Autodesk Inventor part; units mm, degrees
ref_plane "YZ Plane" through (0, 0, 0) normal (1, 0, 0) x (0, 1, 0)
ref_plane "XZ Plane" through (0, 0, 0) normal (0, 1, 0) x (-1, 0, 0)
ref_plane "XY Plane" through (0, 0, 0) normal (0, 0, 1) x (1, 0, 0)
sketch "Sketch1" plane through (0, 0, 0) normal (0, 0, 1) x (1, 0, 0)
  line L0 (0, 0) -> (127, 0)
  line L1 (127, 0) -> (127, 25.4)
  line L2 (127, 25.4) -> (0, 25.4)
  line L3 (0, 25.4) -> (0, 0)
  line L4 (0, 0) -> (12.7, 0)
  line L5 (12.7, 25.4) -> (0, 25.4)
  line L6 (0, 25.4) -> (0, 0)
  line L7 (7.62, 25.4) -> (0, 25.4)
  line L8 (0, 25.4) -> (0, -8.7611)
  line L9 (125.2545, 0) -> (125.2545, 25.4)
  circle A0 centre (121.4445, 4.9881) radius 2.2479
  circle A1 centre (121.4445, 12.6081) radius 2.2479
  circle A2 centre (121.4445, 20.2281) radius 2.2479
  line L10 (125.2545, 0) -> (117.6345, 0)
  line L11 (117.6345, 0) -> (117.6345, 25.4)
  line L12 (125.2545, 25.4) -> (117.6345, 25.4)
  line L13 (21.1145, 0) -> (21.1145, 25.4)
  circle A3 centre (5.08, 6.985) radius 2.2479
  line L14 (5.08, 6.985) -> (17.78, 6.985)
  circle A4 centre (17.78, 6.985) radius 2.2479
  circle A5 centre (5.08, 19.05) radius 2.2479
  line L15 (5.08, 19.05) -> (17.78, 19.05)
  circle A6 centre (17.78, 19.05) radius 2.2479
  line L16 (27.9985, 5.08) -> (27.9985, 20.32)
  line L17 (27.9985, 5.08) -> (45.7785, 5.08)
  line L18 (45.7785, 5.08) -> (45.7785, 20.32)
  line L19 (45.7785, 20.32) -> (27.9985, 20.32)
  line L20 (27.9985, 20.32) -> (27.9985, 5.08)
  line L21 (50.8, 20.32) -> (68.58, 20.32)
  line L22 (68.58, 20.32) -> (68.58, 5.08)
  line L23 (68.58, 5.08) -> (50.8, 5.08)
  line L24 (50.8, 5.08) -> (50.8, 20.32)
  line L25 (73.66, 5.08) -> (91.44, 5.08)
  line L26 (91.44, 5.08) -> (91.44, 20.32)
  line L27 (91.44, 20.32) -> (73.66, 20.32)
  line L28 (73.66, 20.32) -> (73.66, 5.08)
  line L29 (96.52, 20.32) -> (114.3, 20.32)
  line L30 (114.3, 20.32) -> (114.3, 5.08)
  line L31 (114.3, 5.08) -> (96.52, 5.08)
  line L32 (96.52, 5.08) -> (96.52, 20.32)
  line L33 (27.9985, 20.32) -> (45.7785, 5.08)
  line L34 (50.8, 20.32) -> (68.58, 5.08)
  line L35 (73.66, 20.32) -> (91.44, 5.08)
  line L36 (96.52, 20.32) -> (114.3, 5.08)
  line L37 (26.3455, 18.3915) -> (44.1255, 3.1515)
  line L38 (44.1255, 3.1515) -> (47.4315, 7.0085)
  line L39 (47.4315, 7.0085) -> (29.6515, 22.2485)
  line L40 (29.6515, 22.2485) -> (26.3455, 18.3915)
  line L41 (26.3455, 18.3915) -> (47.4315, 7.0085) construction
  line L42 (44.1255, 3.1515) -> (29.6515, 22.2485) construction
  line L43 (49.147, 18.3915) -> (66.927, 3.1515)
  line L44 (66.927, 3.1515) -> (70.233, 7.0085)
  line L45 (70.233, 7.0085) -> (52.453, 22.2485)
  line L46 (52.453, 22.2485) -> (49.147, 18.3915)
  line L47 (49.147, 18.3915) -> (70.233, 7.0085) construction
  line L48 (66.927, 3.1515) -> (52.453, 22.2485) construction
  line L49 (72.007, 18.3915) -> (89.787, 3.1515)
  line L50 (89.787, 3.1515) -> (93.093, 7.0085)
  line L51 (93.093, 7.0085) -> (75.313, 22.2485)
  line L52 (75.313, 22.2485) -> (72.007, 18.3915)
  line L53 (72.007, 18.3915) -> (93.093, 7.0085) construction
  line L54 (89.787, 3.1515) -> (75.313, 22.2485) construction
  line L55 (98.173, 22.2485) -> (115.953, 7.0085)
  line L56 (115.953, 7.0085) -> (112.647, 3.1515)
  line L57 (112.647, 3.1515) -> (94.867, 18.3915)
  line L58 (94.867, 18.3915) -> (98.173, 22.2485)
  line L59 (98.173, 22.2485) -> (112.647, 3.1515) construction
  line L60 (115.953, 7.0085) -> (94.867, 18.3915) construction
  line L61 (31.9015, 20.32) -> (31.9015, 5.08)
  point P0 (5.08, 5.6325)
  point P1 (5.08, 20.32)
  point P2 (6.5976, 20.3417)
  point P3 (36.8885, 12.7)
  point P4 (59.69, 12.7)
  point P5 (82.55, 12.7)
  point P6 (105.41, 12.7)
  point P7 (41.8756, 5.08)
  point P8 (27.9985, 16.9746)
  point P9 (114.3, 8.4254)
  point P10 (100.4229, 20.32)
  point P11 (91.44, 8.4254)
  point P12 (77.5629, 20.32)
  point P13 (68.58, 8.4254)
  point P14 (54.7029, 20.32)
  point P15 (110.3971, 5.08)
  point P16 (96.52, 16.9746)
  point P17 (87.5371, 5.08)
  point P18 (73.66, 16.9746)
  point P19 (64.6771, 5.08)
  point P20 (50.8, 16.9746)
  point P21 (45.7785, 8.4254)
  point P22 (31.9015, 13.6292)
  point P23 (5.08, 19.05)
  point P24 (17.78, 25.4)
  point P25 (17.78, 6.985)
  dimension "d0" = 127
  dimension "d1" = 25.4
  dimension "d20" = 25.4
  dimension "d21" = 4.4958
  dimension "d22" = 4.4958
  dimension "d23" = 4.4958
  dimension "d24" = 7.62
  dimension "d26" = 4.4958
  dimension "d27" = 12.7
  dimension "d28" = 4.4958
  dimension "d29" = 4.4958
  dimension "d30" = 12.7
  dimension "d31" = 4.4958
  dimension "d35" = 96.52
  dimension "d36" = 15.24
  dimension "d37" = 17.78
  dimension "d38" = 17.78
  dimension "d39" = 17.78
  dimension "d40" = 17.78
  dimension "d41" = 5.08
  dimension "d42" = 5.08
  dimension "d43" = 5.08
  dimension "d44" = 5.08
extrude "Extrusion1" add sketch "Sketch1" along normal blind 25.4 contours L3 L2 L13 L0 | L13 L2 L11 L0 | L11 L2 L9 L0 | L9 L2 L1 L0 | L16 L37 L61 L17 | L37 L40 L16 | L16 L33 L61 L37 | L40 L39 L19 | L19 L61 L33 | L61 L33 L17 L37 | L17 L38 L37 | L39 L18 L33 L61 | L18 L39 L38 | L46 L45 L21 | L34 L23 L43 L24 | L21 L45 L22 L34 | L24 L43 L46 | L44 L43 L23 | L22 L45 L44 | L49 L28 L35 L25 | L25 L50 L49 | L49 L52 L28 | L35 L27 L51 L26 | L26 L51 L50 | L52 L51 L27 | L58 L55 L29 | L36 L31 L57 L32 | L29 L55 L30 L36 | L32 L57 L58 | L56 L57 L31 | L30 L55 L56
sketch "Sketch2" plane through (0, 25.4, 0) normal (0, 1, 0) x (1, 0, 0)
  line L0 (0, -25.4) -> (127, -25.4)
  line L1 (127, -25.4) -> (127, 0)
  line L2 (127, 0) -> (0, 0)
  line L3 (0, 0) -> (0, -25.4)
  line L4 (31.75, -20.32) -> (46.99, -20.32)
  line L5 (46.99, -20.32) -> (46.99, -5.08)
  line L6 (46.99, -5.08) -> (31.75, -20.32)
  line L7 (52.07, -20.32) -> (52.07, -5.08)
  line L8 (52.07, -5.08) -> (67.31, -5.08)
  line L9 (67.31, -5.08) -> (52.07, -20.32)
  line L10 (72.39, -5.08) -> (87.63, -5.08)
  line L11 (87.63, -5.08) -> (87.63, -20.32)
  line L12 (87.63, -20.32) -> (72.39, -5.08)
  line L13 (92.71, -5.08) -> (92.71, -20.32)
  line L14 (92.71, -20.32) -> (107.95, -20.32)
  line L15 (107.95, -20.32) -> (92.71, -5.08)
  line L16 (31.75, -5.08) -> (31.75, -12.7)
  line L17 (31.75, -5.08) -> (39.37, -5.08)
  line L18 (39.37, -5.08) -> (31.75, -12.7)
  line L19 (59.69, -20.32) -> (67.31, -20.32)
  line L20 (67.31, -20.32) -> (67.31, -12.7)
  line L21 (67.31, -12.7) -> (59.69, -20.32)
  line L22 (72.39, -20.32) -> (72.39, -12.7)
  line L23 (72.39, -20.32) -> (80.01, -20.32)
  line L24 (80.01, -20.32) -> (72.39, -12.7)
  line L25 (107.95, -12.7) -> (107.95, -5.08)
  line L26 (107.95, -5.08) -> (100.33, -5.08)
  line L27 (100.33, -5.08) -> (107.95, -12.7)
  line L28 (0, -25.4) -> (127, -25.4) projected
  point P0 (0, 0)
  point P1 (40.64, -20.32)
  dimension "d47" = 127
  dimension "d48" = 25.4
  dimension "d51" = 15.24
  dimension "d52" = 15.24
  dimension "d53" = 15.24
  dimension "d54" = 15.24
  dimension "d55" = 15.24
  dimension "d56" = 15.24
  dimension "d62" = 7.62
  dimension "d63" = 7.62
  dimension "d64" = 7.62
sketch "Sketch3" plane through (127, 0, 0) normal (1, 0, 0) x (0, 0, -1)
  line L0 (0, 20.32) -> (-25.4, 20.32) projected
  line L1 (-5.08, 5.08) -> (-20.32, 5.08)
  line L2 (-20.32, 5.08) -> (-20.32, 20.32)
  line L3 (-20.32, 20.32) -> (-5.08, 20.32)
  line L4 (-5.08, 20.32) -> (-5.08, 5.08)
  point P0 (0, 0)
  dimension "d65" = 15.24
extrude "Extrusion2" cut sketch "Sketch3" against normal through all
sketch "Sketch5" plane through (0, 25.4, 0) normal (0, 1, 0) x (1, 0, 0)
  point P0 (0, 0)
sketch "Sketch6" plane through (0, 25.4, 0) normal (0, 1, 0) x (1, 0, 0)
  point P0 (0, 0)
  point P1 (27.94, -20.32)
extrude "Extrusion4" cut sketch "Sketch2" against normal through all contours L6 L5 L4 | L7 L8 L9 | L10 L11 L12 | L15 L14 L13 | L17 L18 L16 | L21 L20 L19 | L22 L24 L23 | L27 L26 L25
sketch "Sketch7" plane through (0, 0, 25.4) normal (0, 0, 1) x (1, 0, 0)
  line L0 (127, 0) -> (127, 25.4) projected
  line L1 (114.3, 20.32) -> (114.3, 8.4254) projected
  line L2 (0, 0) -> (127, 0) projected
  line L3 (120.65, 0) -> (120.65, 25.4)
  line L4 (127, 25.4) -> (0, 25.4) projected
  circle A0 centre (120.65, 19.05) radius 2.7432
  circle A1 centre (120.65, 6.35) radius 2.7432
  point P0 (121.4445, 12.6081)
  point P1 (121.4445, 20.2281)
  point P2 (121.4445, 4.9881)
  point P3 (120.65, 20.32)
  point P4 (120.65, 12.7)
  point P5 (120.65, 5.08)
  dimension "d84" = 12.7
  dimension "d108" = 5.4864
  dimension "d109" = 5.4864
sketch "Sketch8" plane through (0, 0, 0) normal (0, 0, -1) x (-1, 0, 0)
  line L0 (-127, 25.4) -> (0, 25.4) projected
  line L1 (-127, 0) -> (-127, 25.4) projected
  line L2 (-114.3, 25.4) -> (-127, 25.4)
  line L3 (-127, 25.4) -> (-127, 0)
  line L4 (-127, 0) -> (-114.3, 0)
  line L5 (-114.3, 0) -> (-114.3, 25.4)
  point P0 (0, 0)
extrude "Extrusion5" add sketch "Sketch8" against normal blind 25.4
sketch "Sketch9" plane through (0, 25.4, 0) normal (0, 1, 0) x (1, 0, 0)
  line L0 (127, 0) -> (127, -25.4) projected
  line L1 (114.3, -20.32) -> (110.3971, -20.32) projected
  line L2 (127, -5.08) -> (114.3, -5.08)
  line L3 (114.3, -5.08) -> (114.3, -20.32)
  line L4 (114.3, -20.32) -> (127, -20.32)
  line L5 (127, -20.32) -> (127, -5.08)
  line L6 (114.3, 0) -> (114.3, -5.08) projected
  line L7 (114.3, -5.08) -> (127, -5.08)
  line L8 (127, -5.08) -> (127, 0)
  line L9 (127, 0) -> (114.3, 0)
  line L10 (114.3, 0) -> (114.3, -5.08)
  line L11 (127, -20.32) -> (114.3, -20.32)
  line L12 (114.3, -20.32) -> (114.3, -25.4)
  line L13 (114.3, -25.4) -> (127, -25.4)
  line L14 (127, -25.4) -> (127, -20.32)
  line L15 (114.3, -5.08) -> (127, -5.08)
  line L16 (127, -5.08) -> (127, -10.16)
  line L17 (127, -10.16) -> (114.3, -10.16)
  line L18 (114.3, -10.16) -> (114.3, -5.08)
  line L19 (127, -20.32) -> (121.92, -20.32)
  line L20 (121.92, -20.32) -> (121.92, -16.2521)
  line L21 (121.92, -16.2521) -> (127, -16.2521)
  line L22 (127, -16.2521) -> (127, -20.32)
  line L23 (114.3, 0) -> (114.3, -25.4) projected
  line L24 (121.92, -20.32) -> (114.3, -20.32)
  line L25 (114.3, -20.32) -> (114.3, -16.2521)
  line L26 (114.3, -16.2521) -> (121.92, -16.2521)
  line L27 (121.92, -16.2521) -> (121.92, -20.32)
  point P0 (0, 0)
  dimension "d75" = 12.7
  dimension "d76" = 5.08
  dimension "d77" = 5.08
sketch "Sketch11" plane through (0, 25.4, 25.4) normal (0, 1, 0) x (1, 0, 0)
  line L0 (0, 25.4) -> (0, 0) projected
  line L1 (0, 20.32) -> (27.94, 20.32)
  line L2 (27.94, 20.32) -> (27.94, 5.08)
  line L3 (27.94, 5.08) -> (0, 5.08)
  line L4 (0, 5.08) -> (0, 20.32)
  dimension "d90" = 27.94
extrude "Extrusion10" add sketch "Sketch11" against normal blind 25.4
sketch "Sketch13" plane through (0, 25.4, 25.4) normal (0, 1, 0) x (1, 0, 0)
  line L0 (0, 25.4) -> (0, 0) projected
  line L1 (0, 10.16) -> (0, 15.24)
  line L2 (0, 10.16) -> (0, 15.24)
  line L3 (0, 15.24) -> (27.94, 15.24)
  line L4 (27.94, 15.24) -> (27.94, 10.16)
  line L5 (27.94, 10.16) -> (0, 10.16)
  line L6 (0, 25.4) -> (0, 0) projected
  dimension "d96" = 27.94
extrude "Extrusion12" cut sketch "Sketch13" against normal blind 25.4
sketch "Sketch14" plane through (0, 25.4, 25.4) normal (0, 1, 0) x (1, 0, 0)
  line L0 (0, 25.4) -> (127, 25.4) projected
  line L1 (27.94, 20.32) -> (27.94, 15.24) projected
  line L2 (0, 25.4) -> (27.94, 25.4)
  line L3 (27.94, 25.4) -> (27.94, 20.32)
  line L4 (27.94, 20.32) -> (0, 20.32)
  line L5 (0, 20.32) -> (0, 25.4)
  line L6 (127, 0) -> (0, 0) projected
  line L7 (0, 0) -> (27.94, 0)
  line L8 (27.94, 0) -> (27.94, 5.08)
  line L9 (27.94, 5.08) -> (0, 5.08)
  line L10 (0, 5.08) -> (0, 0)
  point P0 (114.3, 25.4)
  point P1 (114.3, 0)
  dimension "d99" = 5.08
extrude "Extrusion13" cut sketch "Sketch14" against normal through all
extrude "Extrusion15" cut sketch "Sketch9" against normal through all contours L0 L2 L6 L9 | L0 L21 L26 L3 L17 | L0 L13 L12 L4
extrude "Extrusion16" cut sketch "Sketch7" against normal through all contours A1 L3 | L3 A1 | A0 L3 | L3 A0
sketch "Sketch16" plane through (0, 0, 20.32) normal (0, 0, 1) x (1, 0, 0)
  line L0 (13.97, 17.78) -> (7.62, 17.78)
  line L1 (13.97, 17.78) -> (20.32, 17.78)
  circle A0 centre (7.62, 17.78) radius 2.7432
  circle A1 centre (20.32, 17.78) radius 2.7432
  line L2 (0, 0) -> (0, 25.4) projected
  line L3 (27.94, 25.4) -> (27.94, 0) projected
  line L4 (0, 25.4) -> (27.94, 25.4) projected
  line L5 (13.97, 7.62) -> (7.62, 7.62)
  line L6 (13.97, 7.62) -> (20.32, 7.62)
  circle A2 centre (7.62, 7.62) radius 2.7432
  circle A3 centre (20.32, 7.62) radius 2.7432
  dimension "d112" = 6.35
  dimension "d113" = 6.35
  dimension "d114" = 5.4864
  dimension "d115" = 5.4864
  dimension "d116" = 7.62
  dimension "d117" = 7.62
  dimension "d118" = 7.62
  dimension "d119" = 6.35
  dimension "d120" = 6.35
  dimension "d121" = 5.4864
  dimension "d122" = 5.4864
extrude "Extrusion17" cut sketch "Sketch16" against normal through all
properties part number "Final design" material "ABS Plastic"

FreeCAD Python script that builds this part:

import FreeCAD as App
import Part
import Sketcher
from FreeCAD import Vector
Q = App.Units.Quantity

doc = App.newDocument("Part")
params = doc.addObject("Spreadsheet::Sheet", "Params")
for row, (alias, value) in enumerate([
    ("sketch1_width", "5 in"),
    ("sketch1_height", "1 in"),
    ("sketch1_diameter", "0.177 in"),
    ("pad1_length", "1 in"),
    ("sketch2_width", "0.6 in"),
    ("sketch3_width", "0.6 in"),
    ("sketch4_height", "1 in"),
    ("sketch4_width", "0.5 in"),
    ("pad2_length", "1 in"),
    ("sketch5_width", "1.1 in"),
    ("sketch5_height", "0.6 in"),
    ("pad3_length", "1 in"),
    ("sketch6_width", "1.1 in"),
    ("sketch6_height", "0.2 in"),
    ("pocket3_length", "1 in"),
    ("sketch7_height", "0.2 in"),
    ("sketch7_width", "1.1 in"),
    ("sketch8_width", "0.5 in"),
    ("sketch8_height", "0.2 in"),
    ("sketch9_diameter", "0.216 in"),
    ("sketch10_diameter", "0.216 in"),
], start=1):
    params.set(f"A{row}", alias)
    params.set(f"B{row}", "=" + value)
    params.setAlias(f"B{row}", alias)

body = doc.addObject("PartDesign::Body", "Body")

# Sketch on XY plane
sketch1 = doc.addObject("Sketcher::SketchObject", "Sketch")
body.addObject(sketch1)
sketch1.AttachmentSupport = (doc.XY_Plane, [""])
sketch1.MapMode = "FlatFace"
sketch1.addGeometry([
    Part.LineSegment(Vector(0, 25.4, 0), Vector(0, 0, 0)),  # 0
    Part.LineSegment(Vector(0, 0, 0), Vector(127, 0, 0)),  # 1
    Part.LineSegment(Vector(127, 0, 0), Vector(127, 25.4, 0)),  # 2
    Part.LineSegment(Vector(127, 25.4, 0), Vector(0, 25.4, 0)),  # 3
    Part.Circle(Vector(5.1, 7, 0), Vector(0, 0, 1), 2.2),  # 4
    Part.Circle(Vector(17.8, 7, 0), Vector(0, 0, 1), 2.2),  # 5
    Part.Circle(Vector(5.1, 19.1, 0), Vector(0, 0, 1), 2.2),  # 6
    Part.Circle(Vector(17.8, 19.1, 0), Vector(0, 0, 1), 2.2),  # 7
    Part.LineSegment(Vector(41.9, 5.1, 0), Vector(31.9, 5.1, 0)),  # 8
    Part.LineSegment(Vector(31.9, 5.1, 0), Vector(31.9, 13.6, 0)),  # 9
    Part.LineSegment(Vector(31.9, 13.6, 0), Vector(41.9, 5.1, 0)),  # 10
    Part.LineSegment(Vector(45.8, 20.3, 0), Vector(45.8, 8.4, 0)),  # 11
    Part.LineSegment(Vector(45.8, 8.4, 0), Vector(31.9, 20.3, 0)),  # 12
    Part.LineSegment(Vector(31.9, 20.3, 0), Vector(45.8, 20.3, 0)),  # 13
    Part.LineSegment(Vector(50.8, 5.1, 0), Vector(50.8, 17, 0)),  # 14
    Part.LineSegment(Vector(50.8, 17, 0), Vector(64.7, 5.1, 0)),  # 15
    Part.LineSegment(Vector(64.7, 5.1, 0), Vector(50.8, 5.1, 0)),  # 16
    Part.LineSegment(Vector(68.6, 20.3, 0), Vector(68.6, 8.4, 0)),  # 17
    Part.LineSegment(Vector(68.6, 8.4, 0), Vector(54.7, 20.3, 0)),  # 18
    Part.LineSegment(Vector(54.7, 20.3, 0), Vector(68.6, 20.3, 0)),  # 19
    Part.LineSegment(Vector(87.5, 5.1, 0), Vector(73.7, 5.1, 0)),  # 20
    Part.LineSegment(Vector(73.7, 5.1, 0), Vector(73.7, 17, 0)),  # 21
    Part.LineSegment(Vector(73.7, 17, 0), Vector(87.5, 5.1, 0)),  # 22
    Part.LineSegment(Vector(91.4, 20.3, 0), Vector(91.4, 8.4, 0)),  # 23
    Part.LineSegment(Vector(91.4, 8.4, 0), Vector(77.6, 20.3, 0)),  # 24
    Part.LineSegment(Vector(77.6, 20.3, 0), Vector(91.4, 20.3, 0)),  # 25
    Part.LineSegment(Vector(96.5, 5.1, 0), Vector(96.5, 17, 0)),  # 26
    Part.LineSegment(Vector(96.5, 17, 0), Vector(110.4, 5.1, 0)),  # 27
    Part.LineSegment(Vector(110.4, 5.1, 0), Vector(96.5, 5.1, 0)),  # 28
    Part.LineSegment(Vector(114.3, 20.3, 0), Vector(114.3, 8.4, 0)),  # 29
    Part.LineSegment(Vector(114.3, 8.4, 0), Vector(100.4, 20.3, 0)),  # 30
    Part.LineSegment(Vector(100.4, 20.3, 0), Vector(114.3, 20.3, 0)),  # 31
    Part.Circle(Vector(121.4, 20.2, 0), Vector(0, 0, 1), 2.2),  # 32
    Part.Circle(Vector(121.4, 5, 0), Vector(0, 0, 1), 2.2),  # 33
    Part.Circle(Vector(121.4, 12.6, 0), Vector(0, 0, 1), 2.2),  # 34
], False)
sketch1.addConstraint([
    Sketcher.Constraint("Coincident", 0, 2, 1, 1),
    Sketcher.Constraint("Coincident", 1, 2, 2, 1),
    Sketcher.Constraint("Coincident", 2, 2, 3, 1),
    Sketcher.Constraint("Coincident", 3, 2, 0, 1),
    Sketcher.Constraint("Coincident", 8, 2, 9, 1),
    Sketcher.Constraint("Coincident", 9, 2, 10, 1),
    Sketcher.Constraint("Coincident", 10, 2, 8, 1),
    Sketcher.Constraint("Coincident", 11, 2, 12, 1),
    Sketcher.Constraint("Coincident", 12, 2, 13, 1),
    Sketcher.Constraint("Coincident", 13, 2, 11, 1),
    Sketcher.Constraint("Coincident", 14, 2, 15, 1),
    Sketcher.Constraint("Coincident", 15, 2, 16, 1),
    Sketcher.Constraint("Coincident", 16, 2, 14, 1),
    Sketcher.Constraint("Coincident", 17, 2, 18, 1),
    Sketcher.Constraint("Coincident", 18, 2, 19, 1),
    Sketcher.Constraint("Coincident", 19, 2, 17, 1),
    Sketcher.Constraint("Coincident", 20, 2, 21, 1),
    Sketcher.Constraint("Coincident", 21, 2, 22, 1),
    Sketcher.Constraint("Coincident", 22, 2, 20, 1),
    Sketcher.Constraint("Coincident", 23, 2, 24, 1),
    Sketcher.Constraint("Coincident", 24, 2, 25, 1),
    Sketcher.Constraint("Coincident", 25, 2, 23, 1),
    Sketcher.Constraint("Coincident", 26, 2, 27, 1),
    Sketcher.Constraint("Coincident", 27, 2, 28, 1),
    Sketcher.Constraint("Coincident", 28, 2, 26, 1),
    Sketcher.Constraint("Coincident", 29, 2, 30, 1),
    Sketcher.Constraint("Coincident", 30, 2, 31, 1),
    Sketcher.Constraint("Coincident", 31, 2, 29, 1),
    Sketcher.Constraint("Vertical", 0),
    Sketcher.Constraint("Horizontal", 1),
    Sketcher.Constraint("Vertical", 2),
    Sketcher.Constraint("Horizontal", 3),
    Sketcher.Constraint("Horizontal", 8),
    Sketcher.Constraint("Vertical", 9),
    Sketcher.Constraint("Vertical", 11),
    Sketcher.Constraint("Horizontal", 13),
    Sketcher.Constraint("Vertical", 14),
    Sketcher.Constraint("Horizontal", 16),
    Sketcher.Constraint("Vertical", 17),
    Sketcher.Constraint("Horizontal", 19),
    Sketcher.Constraint("Horizontal", 20),
    Sketcher.Constraint("Vertical", 21),
    Sketcher.Constraint("Vertical", 23),
    Sketcher.Constraint("Horizontal", 25),
    Sketcher.Constraint("Vertical", 26),
    Sketcher.Constraint("Horizontal", 28),
    Sketcher.Constraint("Vertical", 29),
    Sketcher.Constraint("Horizontal", 31),
    Sketcher.Constraint("Coincident", 0, 2, -1, 1),
    Sketcher.Constraint("Equal", 4, 5),
    Sketcher.Constraint("Equal", 5, 6),
    Sketcher.Constraint("Equal", 6, 7),
    Sketcher.Constraint("Equal", 7, 32),
    Sketcher.Constraint("Equal", 32, 33),
    Sketcher.Constraint("Equal", 33, 34),
    Sketcher.Constraint("Parallel", 10, 12),
    Sketcher.Constraint("Parallel", 12, 15),
    Sketcher.Constraint("Parallel", 15, 18),
    Sketcher.Constraint("Parallel", 18, 22),
    Sketcher.Constraint("Parallel", 22, 24),
    Sketcher.Constraint("Parallel", 24, 27),
    Sketcher.Constraint("Parallel", 27, 30),
    Sketcher.Constraint("Horizontal", 4, 3, 5, 3),
    Sketcher.Constraint("Horizontal", 6, 3, 7, 3),
    Sketcher.Constraint("Horizontal", 10, 2, 15, 2),
    Sketcher.Constraint("Horizontal", 11, 2, 17, 2),
    Sketcher.Constraint("Horizontal", 13, 2, 18, 2),
    Sketcher.Constraint("Horizontal", 16, 2, 20, 2),
    Sketcher.Constraint("Horizontal", 14, 2, 21, 2),
    Sketcher.Constraint("Horizontal", 17, 2, 23, 2),
    Sketcher.Constraint("Horizontal", 19, 2, 24, 2),
    Sketcher.Constraint("Horizontal", 21, 2, 26, 2),
    Sketcher.Constraint("Horizontal", 22, 2, 27, 2),
    Sketcher.Constraint("Horizontal", 23, 2, 29, 2),
    Sketcher.Constraint("Horizontal", 25, 2, 30, 2),
    Sketcher.Constraint("Vertical", 4, 3, 6, 3),
    Sketcher.Constraint("Vertical", 5, 3, 7, 3),
    Sketcher.Constraint("Vertical", 32, 3, 33, 3),
    Sketcher.Constraint("Vertical", 33, 3, 34, 3),
    Sketcher.Constraint("Vertical", 9, 2, 12, 2),
    Sketcher.Constraint("Equal", 13, 16),
    Sketcher.Constraint("DistanceX", 1, 1, 1, 2, Q("5 in")),
    Sketcher.Constraint("DistanceY", 0, 2, 0, 1, Q("1 in")),
    Sketcher.Constraint("Diameter", 4, Q("0.177 in")),
    Sketcher.Constraint("DistanceX", -1, 1, 4, 3, Q("0.2 in")),
    Sketcher.Constraint("DistanceX", -1, 1, 5, 3, Q("0.7 in")),
    Sketcher.Constraint("DistanceY", -1, 1, 8, 2, Q("0.2 in")),
    Sketcher.Constraint("DistanceX", -1, 1, 26, 2, Q("3.8 in")),
    Sketcher.Constraint("DistanceY", 33, 3, 32, 3, Q("0.6 in")),
    Sketcher.Constraint("DistanceY", 33, 3, 34, 3, Q("0.3 in")),
    Sketcher.Constraint("DistanceY", 8, 2, 12, 2, Q("0.6 in")),
    Sketcher.Constraint("DistanceX", 16, 2, 17, 2, Q("0.7 in")),
    Sketcher.Constraint("DistanceX", 17, 2, 20, 2, Q("0.2 in")),
    Sketcher.Constraint("DistanceX", 20, 2, 23, 2, Q("0.7 in")),
    Sketcher.Constraint("DistanceX", 25, 2, 26, 2, Q("0.2 in")),
    Sketcher.Constraint("DistanceX", 29, 2, 1, 2, Q("0.5 in")),
    Sketcher.Constraint("DistanceY", -1, 1, 6, 3, Q("0.75 in")),
    Sketcher.Constraint("DistanceY", 11, 2, 11, 1, Q("0.4683 in")),
    Sketcher.Constraint("DistanceY", -1, 1, 4, 3, Q("0.275 in")),
    Sketcher.Constraint("Distance", 10, Q("0.5172 in")),
    Sketcher.Constraint("DistanceX", 8, 2, 8, 1, Q("9.974 mm")),
    Sketcher.Constraint("DistanceX", -1, 1, 11, 2, Q("1.8023 in")),
    Sketcher.Constraint("DistanceX", -1, 1, 32, 3, Q("121.4445 mm")),
    Sketcher.Constraint("DistanceY", -1, 1, 32, 3, Q("20.228 mm")),
])
sketch1.setExpression("Constraints[81]", "Params.sketch1_width")
sketch1.setExpression("Constraints[82]", "Params.sketch1_height")
sketch1.setExpression("Constraints[83]", "Params.sketch1_diameter")
pad1 = doc.addObject("PartDesign::Pad", "Pad")
body.addObject(pad1)
pad1.Profile = sketch1
pad1.setExpression("Length", "Params.pad1_length")

# Sketch on YZ plane
sketch2 = doc.addObject("Sketcher::SketchObject", "Sketch001")
body.addObject(sketch2)
sketch2.AttachmentSupport = (doc.YZ_Plane, [""])
sketch2.MapMode = "FlatFace"
sketch2.AttachmentOffset = App.Placement(Vector(0, 0, 5 * 25.4), App.Rotation())
sketch2.addGeometry([
    Part.LineSegment(Vector(5, 5, 0), Vector(20, 5, 0)),
    Part.LineSegment(Vector(20, 5, 0), Vector(20, 20, 0)),
    Part.LineSegment(Vector(20, 20, 0), Vector(5, 20, 0)),
    Part.LineSegment(Vector(5, 20, 0), Vector(5, 5, 0)),
], False)
sketch2.addConstraint([
    Sketcher.Constraint("Coincident", 0, 2, 1, 1),
    Sketcher.Constraint("Coincident", 1, 2, 2, 1),
    Sketcher.Constraint("Coincident", 2, 2, 3, 1),
    Sketcher.Constraint("Coincident", 3, 2, 0, 1),
    Sketcher.Constraint("Horizontal", 0),
    Sketcher.Constraint("Vertical", 1),
    Sketcher.Constraint("Horizontal", 2),
    Sketcher.Constraint("Vertical", 3),
    Sketcher.Constraint("Equal", 2, 1),
    Sketcher.Constraint("DistanceX", 0, 1, 0, 2, Q("0.6 in")),
    Sketcher.Constraint("DistanceX", -1, 1, 0, 2, Q("0.8 in")),
    Sketcher.Constraint("DistanceY", -1, 1, 0, 2, Q("0.2 in")),
])
sketch2.setExpression("Constraints[9]", "Params.sketch2_width")
pocket1 = doc.addObject("PartDesign::Pocket", "Pocket")
body.addObject(pocket1)
pocket1.Profile = sketch2
pocket1.Type = "ThroughAll"

# Sketch on XZ plane
sketch3 = doc.addObject("Sketcher::SketchObject", "Sketch002")
body.addObject(sketch3)
sketch3.AttachmentSupport = (doc.XZ_Plane, [""])
sketch3.MapMode = "FlatFace"
sketch3.AttachmentOffset = App.Placement(Vector(0, 0, -1 * 25.4), App.Rotation())
sketch3.addGeometry([
    Part.LineSegment(Vector(47, 5, 0), Vector(32, 20, 0)),  # 0
    Part.LineSegment(Vector(32, 20, 0), Vector(47, 20, 0)),  # 1
    Part.LineSegment(Vector(47, 20, 0), Vector(47, 5, 0)),  # 2
    Part.LineSegment(Vector(52, 5, 0), Vector(52, 20, 0)),  # 3
    Part.LineSegment(Vector(52, 20, 0), Vector(67, 5, 0)),  # 4
    Part.LineSegment(Vector(67, 5, 0), Vector(52, 5, 0)),  # 5
    Part.LineSegment(Vector(88, 5, 0), Vector(72, 5, 0)),  # 6
    Part.LineSegment(Vector(72, 5, 0), Vector(88, 20, 0)),  # 7
    Part.LineSegment(Vector(88, 20, 0), Vector(88, 5, 0)),  # 8
    Part.LineSegment(Vector(108, 20, 0), Vector(93, 5, 0)),  # 9
    Part.LineSegment(Vector(93, 5, 0), Vector(93, 20, 0)),  # 10
    Part.LineSegment(Vector(93, 20, 0), Vector(108, 20, 0)),  # 11
    Part.LineSegment(Vector(39, 5, 0), Vector(32, 5, 0)),  # 12
    Part.LineSegment(Vector(32, 5, 0), Vector(32, 13, 0)),  # 13
    Part.LineSegment(Vector(32, 13, 0), Vector(39, 5, 0)),  # 14
    Part.LineSegment(Vector(67, 13, 0), Vector(60, 20, 0)),  # 15
    Part.LineSegment(Vector(60, 20, 0), Vector(67, 20, 0)),  # 16
    Part.LineSegment(Vector(67, 20, 0), Vector(67, 13, 0)),  # 17
    Part.LineSegment(Vector(72, 13, 0), Vector(72, 20, 0)),  # 18
    Part.LineSegment(Vector(72, 20, 0), Vector(80, 20, 0)),  # 19
    Part.LineSegment(Vector(80, 20, 0), Vector(72, 13, 0)),  # 20
    Part.LineSegment(Vector(100, 5, 0), Vector(108, 13, 0)),  # 21
    Part.LineSegment(Vector(108, 13, 0), Vector(108, 5, 0)),  # 22
    Part.LineSegment(Vector(108, 5, 0), Vector(100, 5, 0)),  # 23
], False)
sketch3.addConstraint([
    Sketcher.Constraint("Coincident", 0, 2, 1, 1),
    Sketcher.Constraint("Coincident", 1, 2, 2, 1),
    Sketcher.Constraint("Coincident", 2, 2, 0, 1),
    Sketcher.Constraint("Coincident", 3, 2, 4, 1),
    Sketcher.Constraint("Coincident", 4, 2, 5, 1),
    Sketcher.Constraint("Coincident", 5, 2, 3, 1),
    Sketcher.Constraint("Coincident", 6, 2, 7, 1),
    Sketcher.Constraint("Coincident", 7, 2, 8, 1),
    Sketcher.Constraint("Coincident", 8, 2, 6, 1),
    Sketcher.Constraint("Coincident", 9, 2, 10, 1),
    Sketcher.Constraint("Coincident", 10, 2, 11, 1),
    Sketcher.Constraint("Coincident", 11, 2, 9, 1),
    Sketcher.Constraint("Coincident", 12, 2, 13, 1),
    Sketcher.Constraint("Coincident", 13, 2, 14, 1),
    Sketcher.Constraint("Coincident", 14, 2, 12, 1),
    Sketcher.Constraint("Coincident", 15, 2, 16, 1),
    Sketcher.Constraint("Coincident", 16, 2, 17, 1),
    Sketcher.Constraint("Coincident", 17, 2, 15, 1),
    Sketcher.Constraint("Coincident", 18, 2, 19, 1),
    Sketcher.Constraint("Coincident", 19, 2, 20, 1),
    Sketcher.Constraint("Coincident", 20, 2, 18, 1),
    Sketcher.Constraint("Coincident", 21, 2, 22, 1),
    Sketcher.Constraint("Coincident", 22, 2, 23, 1),
    Sketcher.Constraint("Coincident", 23, 2, 21, 1),
    Sketcher.Constraint("Horizontal", 1),
    Sketcher.Constraint("Vertical", 2),
    Sketcher.Constraint("Vertical", 3),
    Sketcher.Constraint("Horizontal", 5),
    Sketcher.Constraint("Horizontal", 6),
    Sketcher.Constraint("Vertical", 8),
    Sketcher.Constraint("Vertical", 10),
    Sketcher.Constraint("Horizontal", 11),
    Sketcher.Constraint("Horizontal", 12),
    Sketcher.Constraint("Vertical", 13),
    Sketcher.Constraint("Horizontal", 16),
    Sketcher.Constraint("Vertical", 17),
    Sketcher.Constraint("Vertical", 18),
    Sketcher.Constraint("Horizontal", 19),
    Sketcher.Constraint("Vertical", 22),
    Sketcher.Constraint("Horizontal", 23),
    Sketcher.Constraint("Parallel", 0, 4),
    Sketcher.Constraint("Perpendicular", 4, 7),
    Sketcher.Constraint("Parallel", 7, 9),
    Sketcher.Constraint("Perpendicular", 9, 14),
    Sketcher.Constraint("Parallel", 14, 15),
    Sketcher.Constraint("Perpendicular", 15, 20),
    Sketcher.Constraint("Parallel", 20, 21),
    Sketcher.Constraint("Horizontal", 1, 2, 3, 2),
    Sketcher.Constraint("Horizontal", 2, 2, 4, 2),
    Sketcher.Constraint("Horizontal", 5, 2, 6, 2),
    Sketcher.Constraint("Horizontal", 3, 2, 7, 2),
    Sketcher.Constraint("Horizontal", 8, 2, 9, 2),
    Sketcher.Constraint("Horizontal", 7, 2, 10, 2),
    Sketcher.Constraint("Horizontal", 9, 2, 12, 2),
    Sketcher.Constraint("Horizontal", 11, 2, 15, 2),
    Sketcher.Constraint("Horizontal", 13, 2, 17, 2),
    Sketcher.Constraint("Horizontal", 16, 2, 18, 2),
    Sketcher.Constraint("Horizontal", 17, 2, 20, 2),
    Sketcher.Constraint("Horizontal", 20, 2, 21, 2),
    Sketcher.Constraint("Horizontal", 14, 2, 22, 2),
    Sketcher.Constraint("Vertical", 0, 2, 12, 2),
    Sketcher.Constraint("Vertical", 4, 2, 16, 2),
    Sketcher.Constraint("Vertical", 6, 2, 18, 2),
    Sketcher.Constraint("Vertical", 11, 2, 21, 2),
    Sketcher.Constraint("Equal", 5, 6),
    Sketcher.Constraint("Equal", 12, 16),
    Sketcher.Constraint("DistanceX", 1, 1, 1, 2, Q("0.6 in")),
    Sketcher.Constraint("DistanceX", 2, 2, 6, 2, Q("1 in")),
    Sketcher.Constraint("DistanceX", 4, 2, 9, 2, Q("1 in")),
    Sketcher.Constraint("DistanceY", -1, 1, 0, 2, Q("0.8 in")),
    Sketcher.Constraint("DistanceX", 1, 2, 3, 2, Q("0.2 in")),
    Sketcher.Constraint("DistanceX", -1, 1, 0, 2, Q("1.25 in")),
])
sketch3.setExpression("Constraints[66]", "Params.sketch3_width")
pocket2 = doc.addObject("PartDesign::Pocket", "Pocket001")
body.addObject(pocket2)
pocket2.Profile = sketch3
pocket2.Type = "ThroughAll"
pocket2.Reversed = True

# Sketch on XY plane
sketch4 = doc.addObject("Sketcher::SketchObject", "Sketch003")
body.addObject(sketch4)
sketch4.AttachmentSupport = (doc.XY_Plane, [""])
sketch4.MapMode = "FlatFace"
sketch4.addGeometry([
    Part.LineSegment(Vector(114, 25, 0), Vector(127, 25, 0)),
    Part.LineSegment(Vector(127, 25, 0), Vector(127, 0, 0)),
    Part.LineSegment(Vector(127, 0, 0), Vector(114, 0, 0)),
    Part.LineSegment(Vector(114, 0, 0), Vector(114, 25, 0)),
], False)
sketch4.addConstraint([
    Sketcher.Constraint("Coincident", 0, 2, 1, 1),
    Sketcher.Constraint("Coincident", 1, 2, 2, 1),
    Sketcher.Constraint("Coincident", 2, 2, 3, 1),
    Sketcher.Constraint("Coincident", 3, 2, 0, 1),
    Sketcher.Constraint("Horizontal", 0),
    Sketcher.Constraint("Vertical", 1),
    Sketcher.Constraint("Horizontal", 2),
    Sketcher.Constraint("Vertical", 3),
    Sketcher.Constraint("PointOnObject", 1, 2, -1),
    Sketcher.Constraint("DistanceY", 1, 2, 1, 1, Q("1 in")),
    Sketcher.Constraint("DistanceX", 0, 1, 0, 2, Q("0.5 in")),
    Sketcher.Constraint("DistanceX", -1, 1, 0, 2, Q("5 in")),
])
sketch4.setExpression("Constraints[9]", "Params.sketch4_height")
sketch4.setExpression("Constraints[10]", "Params.sketch4_width")
pad2 = doc.addObject("PartDesign::Pad", "Pad001")
body.addObject(pad2)
pad2.Profile = sketch4
pad2.setExpression("Length", "Params.pad2_length")

# Sketch on XZ plane
sketch5 = doc.addObject("Sketcher::SketchObject", "Sketch004")
body.addObject(sketch5)
sketch5.AttachmentSupport = (doc.XZ_Plane, [""])
sketch5.MapMode = "FlatFace"
sketch5.AttachmentOffset = App.Placement(Vector(0, 0, -1 * 25.4), App.Rotation())
sketch5.addGeometry([
    Part.LineSegment(Vector(28, 5, 0), Vector(0, 5, 0)),
    Part.LineSegment(Vector(0, 5, 0), Vector(0, 20, 0)),
    Part.LineSegment(Vector(0, 20, 0), Vector(28, 20, 0)),
    Part.LineSegment(Vector(28, 20, 0), Vector(28, 5, 0)),
], False)
sketch5.addConstraint([
    Sketcher.Constraint("Coincident", 0, 2, 1, 1),
    Sketcher.Constraint("Coincident", 1, 2, 2, 1),
    Sketcher.Constraint("Coincident", 2, 2, 3, 1),
    Sketcher.Constraint("Coincident", 3, 2, 0, 1),
    Sketcher.Constraint("Horizontal", 0),
    Sketcher.Constraint("Vertical", 1),
    Sketcher.Constraint("Horizontal", 2),
    Sketcher.Constraint("Vertical", 3),
    Sketcher.Constraint("PointOnObject", 0, 2, -2),
    Sketcher.Constraint("DistanceX", 0, 2, 0, 1, Q("1.1 in")),
    Sketcher.Constraint("DistanceY", 1, 1, 1, 2, Q("0.6 in")),
    Sketcher.Constraint("DistanceY", -1, 1, 0, 2, Q("0.2 in")),
])
sketch5.setExpression("Constraints[9]", "Params.sketch5_width")
sketch5.setExpression("Constraints[10]", "Params.sketch5_height")
pad3 = doc.addObject("PartDesign::Pad", "Pad002")
body.addObject(pad3)
pad3.Profile = sketch5
pad3.setExpression("Length", "Params.pad3_length")

# Sketch on XZ plane
sketch6 = doc.addObject("Sketcher::SketchObject", "Sketch005")
body.addObject(sketch6)
sketch6.AttachmentSupport = (doc.XZ_Plane, [""])
sketch6.MapMode = "FlatFace"
sketch6.AttachmentOffset = App.Placement(Vector(0, 0, -1 * 25.4), App.Rotation())
sketch6.addGeometry([
    Part.LineSegment(Vector(28, 10, 0), Vector(0, 10, 0)),
    Part.LineSegment(Vector(0, 10, 0), Vector(0, 15, 0)),
    Part.LineSegment(Vector(0, 15, 0), Vector(28, 15, 0)),
    Part.LineSegment(Vector(28, 15, 0), Vector(28, 10, 0)),
], False)
sketch6.addConstraint([
    Sketcher.Constraint("Coincident", 0, 2, 1, 1),
    Sketcher.Constraint("Coincident", 1, 2, 2, 1),
    Sketcher.Constraint("Coincident", 2, 2, 3, 1),
    Sketcher.Constraint("Coincident", 3, 2, 0, 1),
    Sketcher.Constraint("Horizontal", 0),
    Sketcher.Constraint("Vertical", 1),
    Sketcher.Constraint("Horizontal", 2),
    Sketcher.Constraint("Vertical", 3),
    Sketcher.Constraint("PointOnObject", 0, 2, -2),
    Sketcher.Constraint("DistanceX", 0, 2, 0, 1, Q("1.1 in")),
    Sketcher.Constraint("DistanceY", 1, 1, 1, 2, Q("0.2 in")),
    Sketcher.Constraint("DistanceY", -1, 1, 0, 2, Q("0.4 in")),
])
sketch6.setExpression("Constraints[9]", "Params.sketch6_width")
sketch6.setExpression("Constraints[10]", "Params.sketch6_height")
pocket3 = doc.addObject("PartDesign::Pocket", "Pocket002")
body.addObject(pocket3)
pocket3.Profile = sketch6
pocket3.setExpression("Length", "Params.pocket3_length")
pocket3.Reversed = True

# Sketch on XZ plane
sketch7 = doc.addObject("Sketcher::SketchObject", "Sketch006")
body.addObject(sketch7)
sketch7.AttachmentSupport = (doc.XZ_Plane, [""])
sketch7.MapMode = "FlatFace"
sketch7.AttachmentOffset = App.Placement(Vector(0, 0, -1 * 25.4), App.Rotation())
sketch7.addGeometry([
    Part.LineSegment(Vector(28, 0, 0), Vector(0, 0, 0)),  # 0
    Part.LineSegment(Vector(0, 0, 0), Vector(0, 5, 0)),  # 1
    Part.LineSegment(Vector(0, 5, 0), Vector(28, 5, 0)),  # 2
    Part.LineSegment(Vector(28, 5, 0), Vector(28, 0, 0)),  # 3
    Part.LineSegment(Vector(0, 25, 0), Vector(28, 25, 0)),  # 4
    Part.LineSegment(Vector(28, 25, 0), Vector(28, 20, 0)),  # 5
    Part.LineSegment(Vector(28, 20, 0), Vector(0, 20, 0)),  # 6
    Part.LineSegment(Vector(0, 20, 0), Vector(0, 25, 0)),  # 7
], False)
sketch7.addConstraint([
    Sketcher.Constraint("Coincident", 0, 2, 1, 1),
    Sketcher.Constraint("Coincident", 1, 2, 2, 1),
    Sketcher.Constraint("Coincident", 2, 2, 3, 1),
    Sketcher.Constraint("Coincident", 3, 2, 0, 1),
    Sketcher.Constraint("Coincident", 4, 2, 5, 1),
    Sketcher.Constraint("Coincident", 5, 2, 6, 1),
    Sketcher.Constraint("Coincident", 6, 2, 7, 1),
    Sketcher.Constraint("Coincident", 7, 2, 4, 1),
    Sketcher.Constraint("Horizontal", 0),
    Sketcher.Constraint("Vertical", 1),
    Sketcher.Constraint("Horizontal", 2),
    Sketcher.Constraint("Vertical", 3),
    Sketcher.Constraint("Horizontal", 4),
    Sketcher.Constraint("Vertical", 5),
    Sketcher.Constraint("Horizontal", 6),
    Sketcher.Constraint("Vertical", 7),
    Sketcher.Constraint("Coincident", 0, 2, -1, 1),
    Sketcher.Constraint("PointOnObject", 6, 2, -2),
    Sketcher.Constraint("Vertical", 3, 2, 4, 2),
    Sketcher.Constraint("Equal", 3, 5),
    Sketcher.Constraint("DistanceY", 1, 1, 1, 2, Q("0.2 in")),
    Sketcher.Constraint("DistanceX", 0, 2, 0, 1, Q("1.1 in")),
    Sketcher.Constraint("DistanceY", -1, 1, 4, 2, Q("1 in")),
])
sketch7.setExpression("Constraints[20]", "Params.sketch7_height")
sketch7.setExpression("Constraints[21]", "Params.sketch7_width")
pocket4 = doc.addObject("PartDesign::Pocket", "Pocket003")
body.addObject(pocket4)
pocket4.Profile = sketch7
pocket4.Type = "ThroughAll"
pocket4.Reversed = True

# Sketch on XZ plane
sketch8 = doc.addObject("Sketcher::SketchObject", "Sketch007")
body.addObject(sketch8)
sketch8.AttachmentSupport = (doc.XZ_Plane, [""])
sketch8.MapMode = "FlatFace"
sketch8.AttachmentOffset = App.Placement(Vector(0, 0, -1 * 25.4), App.Rotation())
sketch8.addGeometry([
    Part.LineSegment(Vector(127, 5, 0), Vector(127, 0, 0)),  # 0
    Part.LineSegment(Vector(127, 0, 0), Vector(114, 0, 0)),  # 1
    Part.LineSegment(Vector(114, 0, 0), Vector(114, 5, 0)),  # 2
    Part.LineSegment(Vector(114, 5, 0), Vector(127, 5, 0)),  # 3
    Part.LineSegment(Vector(127, 16, 0), Vector(127, 10, 0)),  # 4
    Part.LineSegment(Vector(127, 10, 0), Vector(114, 10, 0)),  # 5
    Part.LineSegment(Vector(114, 10, 0), Vector(114, 16, 0)),  # 6
    Part.LineSegment(Vector(114, 16, 0), Vector(127, 16, 0)),  # 7
    Part.LineSegment(Vector(127, 25, 0), Vector(127, 20, 0)),  # 8
    Part.LineSegment(Vector(127, 20, 0), Vector(114, 20, 0)),  # 9
    Part.LineSegment(Vector(114, 20, 0), Vector(114, 25, 0)),  # 10
    Part.LineSegment(Vector(114, 25, 0), Vector(127, 25, 0)),  # 11
], False)
sketch8.addConstraint([
    Sketcher.Constraint("Coincident", 0, 2, 1, 1),
    Sketcher.Constraint("Coincident", 1, 2, 2, 1),
    Sketcher.Constraint("Coincident", 2, 2, 3, 1),
    Sketcher.Constraint("Coincident", 3, 2, 0, 1),
    Sketcher.Constraint("Coincident", 4, 2, 5, 1),
    Sketcher.Constraint("Coincident", 5, 2, 6, 1),
    Sketcher.Constraint("Coincident", 6, 2, 7, 1),
    Sketcher.Constraint("Coincident", 7, 2, 4, 1),
    Sketcher.Constraint("Coincident", 8, 2, 9, 1),
    Sketcher.Constraint("Coincident", 9, 2, 10, 1),
    Sketcher.Constraint("Coincident", 10, 2, 11, 1),
    Sketcher.Constraint("Coincident", 11, 2, 8, 1),
    Sketcher.Constraint("Vertical", 0),
    Sketcher.Constraint("Horizontal", 1),
    Sketcher.Constraint("Vertical", 2),
    Sketcher.Constraint("Horizontal", 3),
    Sketcher.Constraint("Vertical", 4),
    Sketcher.Constraint("Horizontal", 5),
    Sketcher.Constraint("Vertical", 6),
    Sketcher.Constraint("Horizontal", 7),
    Sketcher.Constraint("Vertical", 8),
    Sketcher.Constraint("Horizontal", 9),
    Sketcher.Constraint("Vertical", 10),
    Sketcher.Constraint("Horizontal", 11),
    Sketcher.Constraint("PointOnObject", 0, 2, -1),
    Sketcher.Constraint("Vertical", 3, 2, 4, 2),
    Sketcher.Constraint("Vertical", 2, 2, 5, 2),
    Sketcher.Constraint("Vertical", 7, 2, 8, 2),
    Sketcher.Constraint("Vertical", 6, 2, 9, 2),
    Sketcher.Constraint("Equal", 2, 8),
    Sketcher.Constraint("DistanceX", 1, 2, 1, 1, Q("0.5 in")),
    Sketcher.Constraint("DistanceY", 0, 2, 0, 1, Q("0.2 in")),
    Sketcher.Constraint("DistanceY", 3, 2, 4, 2, Q("0.2 in")),
    Sketcher.Constraint("DistanceX", -1, 1, 0, 2, Q("5 in")),
    Sketcher.Constraint("DistanceY", -1, 1, 10, 2, Q("1 in")),
    Sketcher.Constraint("DistanceY", 4, 2, 4, 1, Q("6.092 mm")),
])
sketch8.setExpression("Constraints[30]", "Params.sketch8_width")
sketch8.setExpression("Constraints[31]", "Params.sketch8_height")
pocket5 = doc.addObject("PartDesign::Pocket", "Pocket004")
body.addObject(pocket5)
pocket5.Profile = sketch8
pocket5.Type = "ThroughAll"
pocket5.Reversed = True

# Sketch on XY plane
sketch9 = doc.addObject("Sketcher::SketchObject", "Sketch008")
body.addObject(sketch9)
sketch9.AttachmentSupport = (doc.XY_Plane, [""])
sketch9.MapMode = "FlatFace"
sketch9.AttachmentOffset = App.Placement(Vector(0, 0, 1 * 25.4), App.Rotation())
sketch9.addGeometry([
    Part.Circle(Vector(120.7, 6.3, 0), Vector(0, 0, 1), 2.7),
    Part.Circle(Vector(120.7, 19.1, 0), Vector(0, 0, 1), 2.7),
], False)
sketch9.addConstraint([
    Sketcher.Constraint("Equal", 0, 1),
    Sketcher.Constraint("Vertical", 0, 3, 1, 3),
    Sketcher.Constraint("Diameter", 0, Q("0.216 in")),
    Sketcher.Constraint("DistanceY", 0, 3, 1, 3, Q("0.5 in")),
    Sketcher.Constraint("DistanceX", -1, 1, 0, 3, Q("4.75 in")),
    Sketcher.Constraint("DistanceY", -1, 1, 0, 3, Q("0.25 in")),
])
sketch9.setExpression("Constraints[2]", "Params.sketch9_diameter")
pocket6 = doc.addObject("PartDesign::Pocket", "Pocket005")
body.addObject(pocket6)
pocket6.Profile = sketch9
pocket6.Type = "ThroughAll"

# Sketch on XY plane
sketch10 = doc.addObject("Sketcher::SketchObject", "Sketch009")
body.addObject(sketch10)
sketch10.AttachmentSupport = (doc.XY_Plane, [""])
sketch10.MapMode = "FlatFace"
sketch10.AttachmentOffset = App.Placement(Vector(0, 0, 0.8 * 25.4), App.Rotation())
sketch10.addGeometry([
    Part.Circle(Vector(7.6, 17.8, 0), Vector(0, 0, 1), 2.7),
    Part.Circle(Vector(20.3, 17.8, 0), Vector(0, 0, 1), 2.7),
    Part.Circle(Vector(7.6, 7.6, 0), Vector(0, 0, 1), 2.7),
    Part.Circle(Vector(20.3, 7.6, 0), Vector(0, 0, 1), 2.7),
], False)
sketch10.addConstraint([
    Sketcher.Constraint("Equal", 0, 1),
    Sketcher.Constraint("Equal", 1, 2),
    Sketcher.Constraint("Equal", 2, 3),
    Sketcher.Constraint("Horizontal", 0, 3, 1, 3),
    Sketcher.Constraint("Horizontal", 2, 3, 3, 3),
    Sketcher.Constraint("Vertical", 0, 3, 2, 3),
    Sketcher.Constraint("Vertical", 1, 3, 3, 3),
    Sketcher.Constraint("Diameter", 0, Q("0.216 in")),
    Sketcher.Constraint("DistanceX", -1, 1, 0, 3, Q("0.3 in")),
    Sketcher.Constraint("DistanceY", -1, 1, 2, 3, Q("0.3 in")),
    Sketcher.Constraint("DistanceY", -1, 1, 0, 3, Q("0.7 in")),
    Sketcher.Constraint("DistanceX", -1, 1, 1, 3, Q("0.8 in")),
])
sketch10.setExpression("Constraints[7]", "Params.sketch10_diameter")
pocket7 = doc.addObject("PartDesign::Pocket", "Pocket006")
body.addObject(pocket7)
pocket7.Profile = sketch10
pocket7.Type = "ThroughAll"

doc.recompute()
